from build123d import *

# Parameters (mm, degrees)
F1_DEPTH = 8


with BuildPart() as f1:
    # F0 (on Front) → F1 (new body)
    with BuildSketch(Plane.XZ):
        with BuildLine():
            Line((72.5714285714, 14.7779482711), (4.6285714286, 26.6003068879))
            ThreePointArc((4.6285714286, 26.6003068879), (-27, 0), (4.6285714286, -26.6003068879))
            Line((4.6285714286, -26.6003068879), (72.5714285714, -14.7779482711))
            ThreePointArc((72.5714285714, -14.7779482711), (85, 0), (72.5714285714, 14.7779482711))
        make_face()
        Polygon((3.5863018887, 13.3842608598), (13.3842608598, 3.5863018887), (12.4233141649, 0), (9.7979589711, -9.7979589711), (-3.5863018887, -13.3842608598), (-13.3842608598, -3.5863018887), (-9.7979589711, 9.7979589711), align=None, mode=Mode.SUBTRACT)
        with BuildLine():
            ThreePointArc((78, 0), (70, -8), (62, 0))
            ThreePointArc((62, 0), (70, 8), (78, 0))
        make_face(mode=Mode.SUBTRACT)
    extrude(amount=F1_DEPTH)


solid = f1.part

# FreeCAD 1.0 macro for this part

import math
import FreeCAD as App
import Part
import Sketcher
Q = App.Units.Quantity

doc = App.newDocument("Part")
body = doc.addObject("PartDesign::Body", "Body")

sketch1 = doc.addObject("Sketcher::SketchObject", "Sketch")
body.addObject(sketch1)
sketch1.AttachmentSupport = (doc.XZ_Plane, [""])
sketch1.MapMode = "FlatFace"
sketch1.addGeometry(Part.LineSegment(App.Vector(73, 15, 0), App.Vector(5, 27, 0)), False)
sketch1.addGeometry(Part.ArcOfCircle(Part.Circle(App.Vector(0, 0, 0), App.Vector(0, 0, 1), 27), math.radians(80), math.radians(280)), False)
sketch1.addGeometry(Part.LineSegment(App.Vector(5, -27, 0), App.Vector(73, -15, 0)), False)
sketch1.addGeometry(Part.ArcOfCircle(Part.Circle(App.Vector(70, 0, 0), App.Vector(0, 0, 1), 15), math.radians(-80), math.radians(80)), False)
sketch1.addGeometry(Part.LineSegment(App.Vector(-10, 10, 0), App.Vector(4, 13, 0)), False)
sketch1.addGeometry(Part.LineSegment(App.Vector(4, 13, 0), App.Vector(13, 4, 0)), False)
sketch1.addGeometry(Part.LineSegment(App.Vector(13, 4, 0), App.Vector(10, -10, 0)), False)
sketch1.addGeometry(Part.LineSegment(App.Vector(10, -10, 0), App.Vector(-4, -13, 0)), False)
sketch1.addGeometry(Part.LineSegment(App.Vector(-4, -13, 0), App.Vector(-13, -4, 0)), False)
sketch1.addGeometry(Part.LineSegment(App.Vector(-13, -4, 0), App.Vector(-10, 10, 0)), False)
sketch1.addGeometry(Part.Circle(App.Vector(70, 0, 0), App.Vector(0, 0, 1), 8), False)
sketch1.addConstraint(Sketcher.Constraint("Tangent", 0, 2, 1, 1))
sketch1.addConstraint(Sketcher.Constraint("Tangent", 1, 2, 2, 1))
sketch1.addConstraint(Sketcher.Constraint("Tangent", 2, 2, 3, 1))
sketch1.addConstraint(Sketcher.Constraint("Tangent", 3, 2, 0, 1))
sketch1.addConstraint(Sketcher.Constraint("Coincident", 4, 2, 5, 1))
sketch1.addConstraint(Sketcher.Constraint("Coincident", 5, 2, 6, 1))
sketch1.addConstraint(Sketcher.Constraint("Coincident", 6, 2, 7, 1))
sketch1.addConstraint(Sketcher.Constraint("Coincident", 7, 2, 8, 1))
sketch1.addConstraint(Sketcher.Constraint("Coincident", 8, 2, 9, 1))
sketch1.addConstraint(Sketcher.Constraint("Coincident", 9, 2, 4, 1))
sketch1.addConstraint(Sketcher.Constraint("Coincident", 1, 3, -1, 1))
sketch1.addConstraint(Sketcher.Constraint("Coincident", 10, 3, 3, 3))
sketch1.addConstraint(Sketcher.Constraint("Symmetric", 4, 2, 7, 2, -1, 1))
sketch1.addConstraint(Sketcher.Constraint("Symmetric", 5, 2, 8, 2, -1, 1))
sketch1.addConstraint(Sketcher.Constraint("Symmetric", 6, 2, 9, 2, -1, 1))
sketch1.addConstraint(Sketcher.Constraint("PointOnObject", 3, 3, -1))
sketch1.addConstraint(Sketcher.Constraint("Equal", 4, 5))
sketch1.addConstraint(Sketcher.Constraint("Equal", 5, 6))
sketch1.addConstraint(Sketcher.Constraint("Diameter", 10, Q("16 mm")))
sketch1.addConstraint(Sketcher.Constraint("Radius", 1, Q("27 mm")))
sketch1.addConstraint(Sketcher.Constraint("Radius", 3, Q("15 mm")))
sketch1.addConstraint(Sketcher.Constraint("Angle", 4, Q("15 deg")))
sketch1.addConstraint(Sketcher.Constraint("Angle", 5, Q("-45 deg")))
sketch1.addConstraint(Sketcher.Constraint("Angle", 6, Q("-105 deg")))
sketch1.addConstraint(Sketcher.Constraint("DistanceX", -1, 1, 3, 3, Q("70 mm")))
sketch1.addConstraint(Sketcher.Constraint("DistanceX", -1, 1, 4, 2, Q("3.586302 mm")))
pad1 = doc.addObject("PartDesign::Pad", "Pad")
body.addObject(pad1)
pad1.Profile = sketch1
pad1.Length = 8

doc.recompute()
